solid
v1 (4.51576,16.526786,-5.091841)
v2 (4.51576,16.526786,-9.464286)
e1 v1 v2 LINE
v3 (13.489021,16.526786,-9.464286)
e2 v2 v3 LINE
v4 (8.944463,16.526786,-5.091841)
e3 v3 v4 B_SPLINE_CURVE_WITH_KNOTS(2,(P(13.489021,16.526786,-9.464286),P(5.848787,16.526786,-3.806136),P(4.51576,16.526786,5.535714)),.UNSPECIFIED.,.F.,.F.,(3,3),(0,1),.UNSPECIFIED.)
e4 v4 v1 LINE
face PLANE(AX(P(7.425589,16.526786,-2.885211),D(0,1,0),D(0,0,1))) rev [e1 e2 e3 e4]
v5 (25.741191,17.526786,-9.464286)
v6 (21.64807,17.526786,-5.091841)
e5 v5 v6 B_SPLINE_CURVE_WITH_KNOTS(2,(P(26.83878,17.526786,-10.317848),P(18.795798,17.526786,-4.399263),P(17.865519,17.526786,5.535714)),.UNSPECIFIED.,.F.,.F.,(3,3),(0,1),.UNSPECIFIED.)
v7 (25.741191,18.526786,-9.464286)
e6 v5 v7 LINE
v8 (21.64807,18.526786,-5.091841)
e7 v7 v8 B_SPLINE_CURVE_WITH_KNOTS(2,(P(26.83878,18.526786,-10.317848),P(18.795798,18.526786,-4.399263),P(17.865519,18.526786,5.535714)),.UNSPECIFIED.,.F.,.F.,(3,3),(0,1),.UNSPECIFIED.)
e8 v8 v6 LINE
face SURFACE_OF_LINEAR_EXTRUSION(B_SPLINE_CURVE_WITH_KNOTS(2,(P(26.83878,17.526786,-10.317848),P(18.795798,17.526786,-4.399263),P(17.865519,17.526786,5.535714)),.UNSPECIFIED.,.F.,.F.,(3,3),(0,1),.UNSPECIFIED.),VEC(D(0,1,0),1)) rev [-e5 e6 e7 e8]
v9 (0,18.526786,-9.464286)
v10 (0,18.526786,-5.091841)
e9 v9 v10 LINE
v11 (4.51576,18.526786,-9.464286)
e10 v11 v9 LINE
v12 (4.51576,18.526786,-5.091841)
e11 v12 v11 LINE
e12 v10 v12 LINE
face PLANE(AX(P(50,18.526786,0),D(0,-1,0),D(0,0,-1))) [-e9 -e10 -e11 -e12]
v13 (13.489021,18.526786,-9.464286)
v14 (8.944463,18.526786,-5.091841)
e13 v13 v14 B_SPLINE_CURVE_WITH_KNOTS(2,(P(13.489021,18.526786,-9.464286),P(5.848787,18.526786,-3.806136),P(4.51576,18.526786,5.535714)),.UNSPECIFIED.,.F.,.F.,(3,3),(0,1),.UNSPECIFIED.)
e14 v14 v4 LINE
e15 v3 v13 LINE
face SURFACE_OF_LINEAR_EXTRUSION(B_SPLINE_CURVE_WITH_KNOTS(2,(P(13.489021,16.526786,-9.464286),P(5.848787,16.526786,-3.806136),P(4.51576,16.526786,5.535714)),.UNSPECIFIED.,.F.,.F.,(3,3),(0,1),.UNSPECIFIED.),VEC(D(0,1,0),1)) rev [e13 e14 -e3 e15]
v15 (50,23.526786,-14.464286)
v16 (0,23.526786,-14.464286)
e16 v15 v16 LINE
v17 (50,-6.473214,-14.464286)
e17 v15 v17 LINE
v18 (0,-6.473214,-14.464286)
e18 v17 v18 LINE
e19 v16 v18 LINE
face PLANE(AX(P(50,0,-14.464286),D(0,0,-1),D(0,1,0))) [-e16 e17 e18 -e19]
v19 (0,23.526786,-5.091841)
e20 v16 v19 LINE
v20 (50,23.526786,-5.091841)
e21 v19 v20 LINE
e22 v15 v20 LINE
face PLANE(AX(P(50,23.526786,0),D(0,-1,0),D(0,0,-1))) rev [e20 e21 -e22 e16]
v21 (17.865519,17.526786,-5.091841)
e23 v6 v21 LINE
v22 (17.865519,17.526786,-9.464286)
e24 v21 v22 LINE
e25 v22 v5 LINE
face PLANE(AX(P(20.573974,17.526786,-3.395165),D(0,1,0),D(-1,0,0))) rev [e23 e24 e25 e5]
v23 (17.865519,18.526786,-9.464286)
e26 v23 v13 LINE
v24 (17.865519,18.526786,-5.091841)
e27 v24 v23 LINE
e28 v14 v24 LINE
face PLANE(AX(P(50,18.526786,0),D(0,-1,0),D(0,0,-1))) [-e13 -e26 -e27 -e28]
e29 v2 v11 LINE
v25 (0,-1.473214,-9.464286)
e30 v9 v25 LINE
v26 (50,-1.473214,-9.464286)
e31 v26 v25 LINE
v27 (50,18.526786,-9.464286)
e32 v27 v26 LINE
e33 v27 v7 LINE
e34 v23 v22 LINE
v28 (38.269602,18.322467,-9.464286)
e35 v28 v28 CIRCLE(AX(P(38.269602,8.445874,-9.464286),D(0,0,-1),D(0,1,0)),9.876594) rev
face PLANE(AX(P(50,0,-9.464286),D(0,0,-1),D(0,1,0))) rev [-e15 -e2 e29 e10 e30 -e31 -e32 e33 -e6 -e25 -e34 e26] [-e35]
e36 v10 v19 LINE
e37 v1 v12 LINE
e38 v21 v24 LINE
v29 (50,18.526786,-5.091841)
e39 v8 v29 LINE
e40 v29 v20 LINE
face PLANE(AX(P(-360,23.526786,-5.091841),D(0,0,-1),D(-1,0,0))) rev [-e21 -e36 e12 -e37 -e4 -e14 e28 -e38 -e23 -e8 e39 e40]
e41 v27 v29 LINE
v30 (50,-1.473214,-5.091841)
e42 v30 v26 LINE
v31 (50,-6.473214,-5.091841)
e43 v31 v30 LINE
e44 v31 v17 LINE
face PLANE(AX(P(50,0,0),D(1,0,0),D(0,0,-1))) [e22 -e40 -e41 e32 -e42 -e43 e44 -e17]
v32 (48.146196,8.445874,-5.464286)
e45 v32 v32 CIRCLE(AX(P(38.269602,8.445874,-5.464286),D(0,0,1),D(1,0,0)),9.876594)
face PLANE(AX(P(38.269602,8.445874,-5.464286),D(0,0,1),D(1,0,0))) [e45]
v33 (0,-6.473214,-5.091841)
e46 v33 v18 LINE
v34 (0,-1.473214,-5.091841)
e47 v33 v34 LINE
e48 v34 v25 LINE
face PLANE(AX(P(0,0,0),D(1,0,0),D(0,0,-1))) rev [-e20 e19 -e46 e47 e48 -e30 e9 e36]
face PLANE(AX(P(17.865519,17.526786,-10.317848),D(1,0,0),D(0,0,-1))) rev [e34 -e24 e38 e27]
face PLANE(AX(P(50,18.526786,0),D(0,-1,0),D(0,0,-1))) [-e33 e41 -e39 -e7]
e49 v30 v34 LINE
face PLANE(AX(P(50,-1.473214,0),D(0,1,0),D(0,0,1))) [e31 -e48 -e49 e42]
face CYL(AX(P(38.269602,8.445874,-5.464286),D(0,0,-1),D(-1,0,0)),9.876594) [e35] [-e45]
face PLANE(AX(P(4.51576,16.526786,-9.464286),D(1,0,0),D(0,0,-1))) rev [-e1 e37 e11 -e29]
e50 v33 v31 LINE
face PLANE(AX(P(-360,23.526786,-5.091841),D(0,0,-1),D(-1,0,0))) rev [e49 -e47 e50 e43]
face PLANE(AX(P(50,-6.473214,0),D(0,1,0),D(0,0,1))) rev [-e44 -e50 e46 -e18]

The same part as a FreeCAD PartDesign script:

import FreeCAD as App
import Part
import Sketcher

doc = App.newDocument("Part")
body = doc.addObject("PartDesign::Body", "Body")

sketch1 = body.newObject("Sketcher::SketchObject", "Sketch")
sketch1.AttachmentSupport = (doc.getObject("YZ_Plane"), [""])
sketch1.MapMode = "FlatFace"
sketch1.addGeometry(Part.LineSegment(App.Vector(19, -9, 0), App.Vector(-1, -9, 0)), False)
sketch1.addGeometry(Part.LineSegment(App.Vector(-1, -9, 0), App.Vector(-1, 6, 0)), False)
sketch1.addGeometry(Part.LineSegment(App.Vector(-1, 6, 0), App.Vector(-6, 6, 0)), False)
sketch1.addGeometry(Part.LineSegment(App.Vector(-6, 6, 0), App.Vector(-6, -14, 0)), False)
sketch1.addGeometry(Part.LineSegment(App.Vector(-6, -14, 0), App.Vector(24, -14, 0)), False)
sketch1.addGeometry(Part.LineSegment(App.Vector(24, -14, 0), App.Vector(24, 6, 0)), False)
sketch1.addGeometry(Part.LineSegment(App.Vector(24, 6, 0), App.Vector(19, 6, 0)), False)
sketch1.addGeometry(Part.LineSegment(App.Vector(19, 6, 0), App.Vector(19, -9, 0)), False)
sketch1.addConstraint(Sketcher.Constraint("Coincident", 0, 2, 1, 1))
sketch1.addConstraint(Sketcher.Constraint("Coincident", 1, 2, 2, 1))
sketch1.addConstraint(Sketcher.Constraint("Coincident", 2, 2, 3, 1))
sketch1.addConstraint(Sketcher.Constraint("Coincident", 3, 2, 4, 1))
sketch1.addConstraint(Sketcher.Constraint("Coincident", 4, 2, 5, 1))
sketch1.addConstraint(Sketcher.Constraint("Coincident", 5, 2, 6, 1))
sketch1.addConstraint(Sketcher.Constraint("Coincident", 6, 2, 7, 1))
sketch1.addConstraint(Sketcher.Constraint("Coincident", 7, 2, 0, 1))
sketch1.addConstraint(Sketcher.Constraint("Horizontal", 0))
sketch1.addConstraint(Sketcher.Constraint("Vertical", 1))
sketch1.addConstraint(Sketcher.Constraint("Horizontal", 2))
sketch1.addConstraint(Sketcher.Constraint("Vertical", 3))
sketch1.addConstraint(Sketcher.Constraint("Horizontal", 4))
sketch1.addConstraint(Sketcher.Constraint("Vertical", 5))
sketch1.addConstraint(Sketcher.Constraint("Horizontal", 6))
sketch1.addConstraint(Sketcher.Constraint("Vertical", 7))
sketch1.addConstraint(Sketcher.Constraint("Horizontal", 2, 2, 5, 2))
sketch1.addConstraint(Sketcher.Constraint("Equal", 2, 6))
sketch1.addConstraint(Sketcher.Constraint("Equal", 0, 3))
sketch1.addConstraint(Sketcher.Constraint("DistanceX", 0, 2, 0, 1, 20.0))
sketch1.addConstraint(Sketcher.Constraint("DistanceX", 2, 2, 2, 1, 5.0))
sketch1.addConstraint(Sketcher.Constraint("DistanceY", 1, 1, 1, 2, 15.0))
sketch1.addConstraint(Sketcher.Constraint("DistanceX", 0, 2, -1, 1, 1.473214))
sketch1.addConstraint(Sketcher.Constraint("DistanceY", 0, 2, -1, 1, 9.464286))
pad1 = body.newObject("PartDesign::Pad", "Pad")
pad1.Profile = sketch1
pad1.Length = 50

sketch2 = body.newObject("Sketcher::SketchObject", "Sketch001")
sketch2.AttachmentSupport = (doc.getObject("XZ_Plane"), [""])
sketch2.MapMode = "FlatFace"
sketch2.AttachmentOffset = App.Placement(App.Vector(0, 0, -18.526786), App.Rotation())
sketch2.addGeometry(Part.LineSegment(App.Vector(4.51576, 5.535714, 0), App.Vector(4.51576, -9.464286, 0)), False)
sketch2.addGeometry(Part.LineSegment(App.Vector(4.51576, -9.464286, 0), App.Vector(13.489021, -9.464286, 0)), False)
sketch2.addGeometry(Part.BSplineCurve([App.Vector(4.51576, 5.535714, 0), App.Vector(5.848787, -3.806136, 0), App.Vector(13.489021, -9.464286, 0)], [3, 3], [0, 1], False, 2, [1, 1, 1], False), False)
sketch2.addConstraint(Sketcher.Constraint("Block", 2))
sketch2.addConstraint(Sketcher.Constraint("Coincident", 0, 2, 1, 1))
sketch2.addConstraint(Sketcher.Constraint("Coincident", 1, 2, 2, 2))
sketch2.addConstraint(Sketcher.Constraint("Coincident", 2, 1, 0, 1))
sketch2.addConstraint(Sketcher.Constraint("Vertical", 0))
sketch2.addConstraint(Sketcher.Constraint("Horizontal", 1))
pad2 = body.newObject("PartDesign::Pad", "Pad001")
pad2.Profile = sketch2
pad2.Length = 2

sketch3 = body.newObject("Sketcher::SketchObject", "Sketch002")
sketch3.AttachmentSupport = (doc.getObject("XZ_Plane"), [""])
sketch3.MapMode = "FlatFace"
sketch3.AttachmentOffset = App.Placement(App.Vector(0, 0, -18.526786), App.Rotation())
sketch3.addGeometry(Part.LineSegment(App.Vector(17.865519, 5.535714, 0), App.Vector(17.865519, -10.317848, 0)), False)
sketch3.addGeometry(Part.LineSegment(App.Vector(17.865519, -10.317848, 0), App.Vector(26.83878, -10.317848, 0)), False)
sketch3.addGeometry(Part.BSplineCurve([App.Vector(17.865519, 5.535714, 0), App.Vector(18.795798, -4.399263, 0), App.Vector(26.83878, -10.317848, 0)], [3, 3], [0, 1], False, 2, [1, 1, 1], False), False)
sketch3.addConstraint(Sketcher.Constraint("Block", 2))
sketch3.addConstraint(Sketcher.Constraint("Coincident", 0, 2, 1, 1))
sketch3.addConstraint(Sketcher.Constraint("Coincident", 1, 2, 2, 2))
sketch3.addConstraint(Sketcher.Constraint("Coincident", 2, 1, 0, 1))
sketch3.addConstraint(Sketcher.Constraint("Vertical", 0))
sketch3.addConstraint(Sketcher.Constraint("Horizontal", 1))
pad3 = body.newObject("PartDesign::Pad", "Pad002")
pad3.Profile = sketch3
pad3.Length = 1

sketch4 = body.newObject("Sketcher::SketchObject", "Sketch003")
sketch4.AttachmentSupport = (doc.getObject("YZ_Plane"), [""])
sketch4.MapMode = "FlatFace"
sketch4.AttachmentOffset = App.Placement(App.Vector(0, 0, 50), App.Rotation())
sketch4.addGeometry(Part.LineSegment(App.Vector(24, 6, 0), App.Vector(-6, 6, 0)), False)
sketch4.addGeometry(Part.LineSegment(App.Vector(-6, 6, 0), App.Vector(-6, -5, 0)), False)
sketch4.addGeometry(Part.LineSegment(App.Vector(-6, -5, 0), App.Vector(24, -5, 0)), False)
sketch4.addGeometry(Part.LineSegment(App.Vector(24, -5, 0), App.Vector(24, 6, 0)), False)
sketch4.addConstraint(Sketcher.Constraint("Coincident", 0, 2, 1, 1))
sketch4.addConstraint(Sketcher.Constraint("Coincident", 1, 2, 2, 1))
sketch4.addConstraint(Sketcher.Constraint("Coincident", 2, 2, 3, 1))
sketch4.addConstraint(Sketcher.Constraint("Coincident", 3, 2, 0, 1))
sketch4.addConstraint(Sketcher.Constraint("Horizontal", 0))
sketch4.addConstraint(Sketcher.Constraint("Vertical", 1))
sketch4.addConstraint(Sketcher.Constraint("Horizontal", 2))
sketch4.addConstraint(Sketcher.Constraint("Vertical", 3))
sketch4.addConstraint(Sketcher.Constraint("DistanceX", 0, 2, 0, 1, 30.0))
sketch4.addConstraint(Sketcher.Constraint("DistanceY", 1, 2, 1, 1, 10.627556))
sketch4.addConstraint(Sketcher.Constraint("DistanceY", 1, 2, -1, 1, 5.091841))
sketch4.addConstraint(Sketcher.Constraint("DistanceX", 0, 2, -1, 1, 6.473214))
pocket1 = body.newObject("PartDesign::Pocket", "Pocket")
pocket1.Profile = sketch4
pocket1.Length = 410

sketch5 = body.newObject("Sketcher::SketchObject", "Sketch004")
sketch5.AttachmentSupport = (doc.getObject("XY_Plane"), [""])
sketch5.MapMode = "FlatFace"
sketch5.AttachmentOffset = App.Placement(App.Vector(0, 0, -9.464286), App.Rotation())
sketch5.addGeometry(Part.Circle(App.Vector(38, 8, 0), App.Vector(0, 0, 1), 10), False)
sketch5.addConstraint(Sketcher.Constraint("Diameter", 0, 19.753188))
sketch5.addConstraint(Sketcher.Constraint("DistanceX", -1, 1, 0, 3, 38.269602))
sketch5.addConstraint(Sketcher.Constraint("DistanceY", -1, 1, 0, 3, 8.445874))
pad4 = body.newObject("PartDesign::Pad", "Pad003")
pad4.Profile = sketch5
pad4.Length = 4

doc.recompute()
